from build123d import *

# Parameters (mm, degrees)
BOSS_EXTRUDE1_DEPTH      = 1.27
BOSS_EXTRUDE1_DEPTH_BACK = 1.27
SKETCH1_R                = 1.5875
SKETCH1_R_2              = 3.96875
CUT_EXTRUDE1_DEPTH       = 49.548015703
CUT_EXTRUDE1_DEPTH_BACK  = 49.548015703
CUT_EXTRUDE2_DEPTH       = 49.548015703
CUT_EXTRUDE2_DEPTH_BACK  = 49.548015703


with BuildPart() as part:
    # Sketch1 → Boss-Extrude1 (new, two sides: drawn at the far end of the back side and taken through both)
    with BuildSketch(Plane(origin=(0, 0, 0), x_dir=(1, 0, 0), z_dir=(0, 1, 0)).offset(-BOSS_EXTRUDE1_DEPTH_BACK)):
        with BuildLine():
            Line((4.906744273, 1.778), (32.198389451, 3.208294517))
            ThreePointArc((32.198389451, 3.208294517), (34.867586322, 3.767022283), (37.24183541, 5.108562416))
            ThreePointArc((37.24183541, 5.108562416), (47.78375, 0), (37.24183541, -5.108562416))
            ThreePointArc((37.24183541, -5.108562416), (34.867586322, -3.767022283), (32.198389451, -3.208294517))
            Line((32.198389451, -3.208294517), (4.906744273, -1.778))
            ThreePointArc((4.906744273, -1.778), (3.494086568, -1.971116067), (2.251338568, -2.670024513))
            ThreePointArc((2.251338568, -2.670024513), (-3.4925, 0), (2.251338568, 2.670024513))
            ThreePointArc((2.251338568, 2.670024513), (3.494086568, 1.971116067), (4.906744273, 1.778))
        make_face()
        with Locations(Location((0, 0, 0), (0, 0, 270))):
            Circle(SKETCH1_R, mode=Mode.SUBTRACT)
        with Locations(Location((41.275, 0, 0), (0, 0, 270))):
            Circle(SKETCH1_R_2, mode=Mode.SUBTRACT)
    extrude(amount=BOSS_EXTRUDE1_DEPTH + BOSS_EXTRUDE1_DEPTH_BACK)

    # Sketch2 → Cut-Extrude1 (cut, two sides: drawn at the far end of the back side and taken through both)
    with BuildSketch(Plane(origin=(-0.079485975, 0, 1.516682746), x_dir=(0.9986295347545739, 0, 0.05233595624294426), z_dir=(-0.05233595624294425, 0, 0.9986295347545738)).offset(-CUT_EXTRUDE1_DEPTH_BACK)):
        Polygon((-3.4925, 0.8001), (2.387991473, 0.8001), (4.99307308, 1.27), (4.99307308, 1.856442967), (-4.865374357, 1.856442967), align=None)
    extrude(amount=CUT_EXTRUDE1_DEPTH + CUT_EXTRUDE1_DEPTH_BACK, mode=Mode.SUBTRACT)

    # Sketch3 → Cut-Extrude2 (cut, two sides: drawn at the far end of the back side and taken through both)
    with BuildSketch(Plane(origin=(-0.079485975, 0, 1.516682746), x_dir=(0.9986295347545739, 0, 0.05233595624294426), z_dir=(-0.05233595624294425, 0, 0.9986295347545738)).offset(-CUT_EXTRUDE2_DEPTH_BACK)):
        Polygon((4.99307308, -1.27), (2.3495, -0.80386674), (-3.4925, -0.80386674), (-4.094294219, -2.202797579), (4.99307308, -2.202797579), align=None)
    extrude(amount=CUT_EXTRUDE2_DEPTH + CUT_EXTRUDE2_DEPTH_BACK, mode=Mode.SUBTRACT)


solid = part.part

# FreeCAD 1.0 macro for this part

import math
import FreeCAD as App
import Part
import Sketcher
from FreeCAD import Vector
Q = App.Units.Quantity


def add_polygon(sketch, points):
    """Adds a closed chain of lines whose ends are joined by coincident constraints."""
    first, n = sketch.GeometryCount, len(points)
    for a, b in zip(points, points[1:] + points[:1]):
        sketch.addGeometry(Part.LineSegment(App.Vector(*a, 0), App.Vector(*b, 0)), False)
    for i in range(n):
        sketch.addConstraint(Sketcher.Constraint("Coincident", first + i, 2, first + (i + 1) % n, 1))

doc = App.newDocument("Part")
body = doc.addObject("PartDesign::Body", "Body")

sketch1 = body.newObject("Sketcher::SketchObject", "Sketch")
sketch1.AttachmentSupport = (doc.getObject("XZ_Plane"), [""])
sketch1.MapMode = "FlatFace"
sketch1.addGeometry([
    Part.LineSegment(Vector(32.198389, -3.208295, 0), Vector(4.906744, -1.778, 0)),
    Part.ArcOfCircle(Part.Circle(Vector(4.707344, -5.582779, 0), Vector(0, 0, 1), 3.81), math.radians(87), math.radians(130.137259)),
    Part.ArcOfCircle(Part.Circle(Vector(0, 0, 0), Vector(0, 0, 1), 3.4925), math.radians(49.862741), math.radians(310.137259)),
    Part.ArcOfCircle(Part.Circle(Vector(4.707344, 5.582779, 0), Vector(0, 0, 1), 3.81), math.radians(-130.137259), math.radians(-87)),
    Part.LineSegment(Vector(4.906744, 1.778, 0), Vector(32.198389, 3.208295, 0)),
    Part.ArcOfCircle(Part.Circle(Vector(31.733123, 12.086111, 0), Vector(0, 0, 1), 8.89), math.radians(-87), math.radians(-51.709222)),
    Part.ArcOfCircle(Part.Circle(Vector(41.275, 0, 0), Vector(0, 0, 1), 6.50875), math.radians(-128.290778), math.radians(128.290778)),
    Part.ArcOfCircle(Part.Circle(Vector(31.733123, -12.086111, 0), Vector(0, 0, 1), 8.89), math.radians(51.709222), math.radians(87)),
    Part.Circle(Vector(41.275, 0, 0), Vector(0, 0, 1), 3.96875),
    Part.Circle(Vector(0, 0, 0), Vector(0, 0, 1), 1.5875),
], False)
sketch1.addConstraint([
    Sketcher.Constraint("Tangent", 0, 2, 1, 1),
    Sketcher.Constraint("Tangent", 1, 2, 2, 2),
    Sketcher.Constraint("Tangent", 2, 1, 3, 1),
    Sketcher.Constraint("Tangent", 3, 2, 4, 1),
    Sketcher.Constraint("Tangent", 4, 2, 5, 1),
    Sketcher.Constraint("Tangent", 5, 2, 6, 2),
    Sketcher.Constraint("Tangent", 6, 1, 7, 1),
    Sketcher.Constraint("Tangent", 7, 2, 0, 1),
    Sketcher.Constraint("Coincident", 2, 3, -1, 1),
    Sketcher.Constraint("Coincident", 9, 3, -1, 1),
    Sketcher.Constraint("Coincident", 8, 3, 6, 3),
    Sketcher.Constraint("Equal", 1, 3),
    Sketcher.Constraint("Equal", 5, 7),
    Sketcher.Constraint("Symmetric", 5, 3, 7, 3, -1),
    Sketcher.Constraint("Vertical", 1, 3, 3, 3),
    Sketcher.Constraint("Radius", 1, Q("0.15 in")),
    Sketcher.Constraint("Radius", 5, Q("0.35 in")),
    Sketcher.Constraint("Diameter", 8, Q("0.3125 in")),
    Sketcher.Constraint("Diameter", 9, Q("0.125 in")),
    Sketcher.Constraint("Angle", 0, Q("177 deg")),
    Sketcher.Constraint("Radius", 2, Q("0.1375 in")),
    Sketcher.Constraint("DistanceY", 0, 2, -1, 1, Q("0.07 in")),
    Sketcher.Constraint("DistanceX", -1, 1, 6, 3, Q("1.625 in")),
    Sketcher.Constraint("Radius", 6, 6.50875),
])
pad1 = body.newObject("PartDesign::Pad", "Pad")
pad1.Profile = sketch1
pad1.Type = "TwoLengths"
pad1.Length = Q("0.05 in")
pad1.Length2 = Q("0.05 in")
pad1.Reversed = True

sketch2 = body.newObject("Sketcher::SketchObject", "Sketch001")
sketch2.Placement = App.Placement(Vector(-0.079486, 0, 1.516683), App.Rotation(Vector(0.998629535, 0, 0.052335956), Vector(0, 1, 0), Vector(-0.052335956, 0, 0.998629535), "ZXY"))
add_polygon(sketch2, [(-3.4925, 0.8001), (2.387991, 0.8001), (4.993073, 1.27), (4.993073, 1.856443), (-4.865374, 1.856443)])
sketch2.addConstraint([
    Sketcher.Constraint("Horizontal", 0),
    Sketcher.Constraint("Vertical", 2),
    Sketcher.Constraint("Horizontal", 3),
    Sketcher.Constraint("DistanceY", -1, 1, 1, 2, Q("0.05 in")),
    Sketcher.Constraint("DistanceY", -1, 1, 0, 2, Q("0.0315 in")),
    Sketcher.Constraint("DistanceX", 4, 2, -1, 1, Q("0.1375 in")),
    Sketcher.Constraint("DistanceX", 0, 1, 0, 2, 5.880491),
    Sketcher.Constraint("DistanceX", 3, 2, 3, 1, 9.858447),
    Sketcher.Constraint("DistanceY", 2, 1, 2, 2, 0.586443),
    Sketcher.Constraint("DistanceX", 0, 2, 1, 2, 2.605082),
])
pocket1 = body.newObject("PartDesign::Pocket", "Pocket")
pocket1.Profile = sketch2
pocket1.Type = "ThroughAll"
pocket1.Midplane = True

sketch3 = body.newObject("Sketcher::SketchObject", "Sketch002")
sketch3.Placement = App.Placement(Vector(-0.079486, 0, 1.516683), App.Rotation(Vector(0.998629535, 0, 0.052335956), Vector(0, 1, 0), Vector(-0.052335956, 0, 0.998629535), "ZXY"))
add_polygon(sketch3, [(4.993073, -1.27), (2.3495, -0.803867), (-3.4925, -0.803867), (-4.094294, -2.202798), (4.993073, -2.202798)])
sketch3.addConstraint([
    Sketcher.Constraint("Horizontal", 1),
    Sketcher.Constraint("Horizontal", 3),
    Sketcher.Constraint("Vertical", 4),
    Sketcher.Constraint("Angle", 0, Q("170 deg")),
    Sketcher.Constraint("DistanceX", 1, 2, 1, 1, Q("0.23 in")),
    Sketcher.Constraint("DistanceY", 4, 2, -1, 1, Q("0.05 in")),
    Sketcher.Constraint("DistanceX", -1, 1, 0, 2, Q("0.0925 in")),
    Sketcher.Constraint("Distance", 2, 1.52288),
    Sketcher.Constraint("DistanceX", 3, 1, 3, 2, 9.087367),
    Sketcher.Constraint("DistanceY", 4, 1, 4, 2, 0.932798),
])
pocket2 = body.newObject("PartDesign::Pocket", "Pocket001")
pocket2.Profile = sketch3
pocket2.Type = "ThroughAll"
pocket2.Midplane = True

doc.recompute()
